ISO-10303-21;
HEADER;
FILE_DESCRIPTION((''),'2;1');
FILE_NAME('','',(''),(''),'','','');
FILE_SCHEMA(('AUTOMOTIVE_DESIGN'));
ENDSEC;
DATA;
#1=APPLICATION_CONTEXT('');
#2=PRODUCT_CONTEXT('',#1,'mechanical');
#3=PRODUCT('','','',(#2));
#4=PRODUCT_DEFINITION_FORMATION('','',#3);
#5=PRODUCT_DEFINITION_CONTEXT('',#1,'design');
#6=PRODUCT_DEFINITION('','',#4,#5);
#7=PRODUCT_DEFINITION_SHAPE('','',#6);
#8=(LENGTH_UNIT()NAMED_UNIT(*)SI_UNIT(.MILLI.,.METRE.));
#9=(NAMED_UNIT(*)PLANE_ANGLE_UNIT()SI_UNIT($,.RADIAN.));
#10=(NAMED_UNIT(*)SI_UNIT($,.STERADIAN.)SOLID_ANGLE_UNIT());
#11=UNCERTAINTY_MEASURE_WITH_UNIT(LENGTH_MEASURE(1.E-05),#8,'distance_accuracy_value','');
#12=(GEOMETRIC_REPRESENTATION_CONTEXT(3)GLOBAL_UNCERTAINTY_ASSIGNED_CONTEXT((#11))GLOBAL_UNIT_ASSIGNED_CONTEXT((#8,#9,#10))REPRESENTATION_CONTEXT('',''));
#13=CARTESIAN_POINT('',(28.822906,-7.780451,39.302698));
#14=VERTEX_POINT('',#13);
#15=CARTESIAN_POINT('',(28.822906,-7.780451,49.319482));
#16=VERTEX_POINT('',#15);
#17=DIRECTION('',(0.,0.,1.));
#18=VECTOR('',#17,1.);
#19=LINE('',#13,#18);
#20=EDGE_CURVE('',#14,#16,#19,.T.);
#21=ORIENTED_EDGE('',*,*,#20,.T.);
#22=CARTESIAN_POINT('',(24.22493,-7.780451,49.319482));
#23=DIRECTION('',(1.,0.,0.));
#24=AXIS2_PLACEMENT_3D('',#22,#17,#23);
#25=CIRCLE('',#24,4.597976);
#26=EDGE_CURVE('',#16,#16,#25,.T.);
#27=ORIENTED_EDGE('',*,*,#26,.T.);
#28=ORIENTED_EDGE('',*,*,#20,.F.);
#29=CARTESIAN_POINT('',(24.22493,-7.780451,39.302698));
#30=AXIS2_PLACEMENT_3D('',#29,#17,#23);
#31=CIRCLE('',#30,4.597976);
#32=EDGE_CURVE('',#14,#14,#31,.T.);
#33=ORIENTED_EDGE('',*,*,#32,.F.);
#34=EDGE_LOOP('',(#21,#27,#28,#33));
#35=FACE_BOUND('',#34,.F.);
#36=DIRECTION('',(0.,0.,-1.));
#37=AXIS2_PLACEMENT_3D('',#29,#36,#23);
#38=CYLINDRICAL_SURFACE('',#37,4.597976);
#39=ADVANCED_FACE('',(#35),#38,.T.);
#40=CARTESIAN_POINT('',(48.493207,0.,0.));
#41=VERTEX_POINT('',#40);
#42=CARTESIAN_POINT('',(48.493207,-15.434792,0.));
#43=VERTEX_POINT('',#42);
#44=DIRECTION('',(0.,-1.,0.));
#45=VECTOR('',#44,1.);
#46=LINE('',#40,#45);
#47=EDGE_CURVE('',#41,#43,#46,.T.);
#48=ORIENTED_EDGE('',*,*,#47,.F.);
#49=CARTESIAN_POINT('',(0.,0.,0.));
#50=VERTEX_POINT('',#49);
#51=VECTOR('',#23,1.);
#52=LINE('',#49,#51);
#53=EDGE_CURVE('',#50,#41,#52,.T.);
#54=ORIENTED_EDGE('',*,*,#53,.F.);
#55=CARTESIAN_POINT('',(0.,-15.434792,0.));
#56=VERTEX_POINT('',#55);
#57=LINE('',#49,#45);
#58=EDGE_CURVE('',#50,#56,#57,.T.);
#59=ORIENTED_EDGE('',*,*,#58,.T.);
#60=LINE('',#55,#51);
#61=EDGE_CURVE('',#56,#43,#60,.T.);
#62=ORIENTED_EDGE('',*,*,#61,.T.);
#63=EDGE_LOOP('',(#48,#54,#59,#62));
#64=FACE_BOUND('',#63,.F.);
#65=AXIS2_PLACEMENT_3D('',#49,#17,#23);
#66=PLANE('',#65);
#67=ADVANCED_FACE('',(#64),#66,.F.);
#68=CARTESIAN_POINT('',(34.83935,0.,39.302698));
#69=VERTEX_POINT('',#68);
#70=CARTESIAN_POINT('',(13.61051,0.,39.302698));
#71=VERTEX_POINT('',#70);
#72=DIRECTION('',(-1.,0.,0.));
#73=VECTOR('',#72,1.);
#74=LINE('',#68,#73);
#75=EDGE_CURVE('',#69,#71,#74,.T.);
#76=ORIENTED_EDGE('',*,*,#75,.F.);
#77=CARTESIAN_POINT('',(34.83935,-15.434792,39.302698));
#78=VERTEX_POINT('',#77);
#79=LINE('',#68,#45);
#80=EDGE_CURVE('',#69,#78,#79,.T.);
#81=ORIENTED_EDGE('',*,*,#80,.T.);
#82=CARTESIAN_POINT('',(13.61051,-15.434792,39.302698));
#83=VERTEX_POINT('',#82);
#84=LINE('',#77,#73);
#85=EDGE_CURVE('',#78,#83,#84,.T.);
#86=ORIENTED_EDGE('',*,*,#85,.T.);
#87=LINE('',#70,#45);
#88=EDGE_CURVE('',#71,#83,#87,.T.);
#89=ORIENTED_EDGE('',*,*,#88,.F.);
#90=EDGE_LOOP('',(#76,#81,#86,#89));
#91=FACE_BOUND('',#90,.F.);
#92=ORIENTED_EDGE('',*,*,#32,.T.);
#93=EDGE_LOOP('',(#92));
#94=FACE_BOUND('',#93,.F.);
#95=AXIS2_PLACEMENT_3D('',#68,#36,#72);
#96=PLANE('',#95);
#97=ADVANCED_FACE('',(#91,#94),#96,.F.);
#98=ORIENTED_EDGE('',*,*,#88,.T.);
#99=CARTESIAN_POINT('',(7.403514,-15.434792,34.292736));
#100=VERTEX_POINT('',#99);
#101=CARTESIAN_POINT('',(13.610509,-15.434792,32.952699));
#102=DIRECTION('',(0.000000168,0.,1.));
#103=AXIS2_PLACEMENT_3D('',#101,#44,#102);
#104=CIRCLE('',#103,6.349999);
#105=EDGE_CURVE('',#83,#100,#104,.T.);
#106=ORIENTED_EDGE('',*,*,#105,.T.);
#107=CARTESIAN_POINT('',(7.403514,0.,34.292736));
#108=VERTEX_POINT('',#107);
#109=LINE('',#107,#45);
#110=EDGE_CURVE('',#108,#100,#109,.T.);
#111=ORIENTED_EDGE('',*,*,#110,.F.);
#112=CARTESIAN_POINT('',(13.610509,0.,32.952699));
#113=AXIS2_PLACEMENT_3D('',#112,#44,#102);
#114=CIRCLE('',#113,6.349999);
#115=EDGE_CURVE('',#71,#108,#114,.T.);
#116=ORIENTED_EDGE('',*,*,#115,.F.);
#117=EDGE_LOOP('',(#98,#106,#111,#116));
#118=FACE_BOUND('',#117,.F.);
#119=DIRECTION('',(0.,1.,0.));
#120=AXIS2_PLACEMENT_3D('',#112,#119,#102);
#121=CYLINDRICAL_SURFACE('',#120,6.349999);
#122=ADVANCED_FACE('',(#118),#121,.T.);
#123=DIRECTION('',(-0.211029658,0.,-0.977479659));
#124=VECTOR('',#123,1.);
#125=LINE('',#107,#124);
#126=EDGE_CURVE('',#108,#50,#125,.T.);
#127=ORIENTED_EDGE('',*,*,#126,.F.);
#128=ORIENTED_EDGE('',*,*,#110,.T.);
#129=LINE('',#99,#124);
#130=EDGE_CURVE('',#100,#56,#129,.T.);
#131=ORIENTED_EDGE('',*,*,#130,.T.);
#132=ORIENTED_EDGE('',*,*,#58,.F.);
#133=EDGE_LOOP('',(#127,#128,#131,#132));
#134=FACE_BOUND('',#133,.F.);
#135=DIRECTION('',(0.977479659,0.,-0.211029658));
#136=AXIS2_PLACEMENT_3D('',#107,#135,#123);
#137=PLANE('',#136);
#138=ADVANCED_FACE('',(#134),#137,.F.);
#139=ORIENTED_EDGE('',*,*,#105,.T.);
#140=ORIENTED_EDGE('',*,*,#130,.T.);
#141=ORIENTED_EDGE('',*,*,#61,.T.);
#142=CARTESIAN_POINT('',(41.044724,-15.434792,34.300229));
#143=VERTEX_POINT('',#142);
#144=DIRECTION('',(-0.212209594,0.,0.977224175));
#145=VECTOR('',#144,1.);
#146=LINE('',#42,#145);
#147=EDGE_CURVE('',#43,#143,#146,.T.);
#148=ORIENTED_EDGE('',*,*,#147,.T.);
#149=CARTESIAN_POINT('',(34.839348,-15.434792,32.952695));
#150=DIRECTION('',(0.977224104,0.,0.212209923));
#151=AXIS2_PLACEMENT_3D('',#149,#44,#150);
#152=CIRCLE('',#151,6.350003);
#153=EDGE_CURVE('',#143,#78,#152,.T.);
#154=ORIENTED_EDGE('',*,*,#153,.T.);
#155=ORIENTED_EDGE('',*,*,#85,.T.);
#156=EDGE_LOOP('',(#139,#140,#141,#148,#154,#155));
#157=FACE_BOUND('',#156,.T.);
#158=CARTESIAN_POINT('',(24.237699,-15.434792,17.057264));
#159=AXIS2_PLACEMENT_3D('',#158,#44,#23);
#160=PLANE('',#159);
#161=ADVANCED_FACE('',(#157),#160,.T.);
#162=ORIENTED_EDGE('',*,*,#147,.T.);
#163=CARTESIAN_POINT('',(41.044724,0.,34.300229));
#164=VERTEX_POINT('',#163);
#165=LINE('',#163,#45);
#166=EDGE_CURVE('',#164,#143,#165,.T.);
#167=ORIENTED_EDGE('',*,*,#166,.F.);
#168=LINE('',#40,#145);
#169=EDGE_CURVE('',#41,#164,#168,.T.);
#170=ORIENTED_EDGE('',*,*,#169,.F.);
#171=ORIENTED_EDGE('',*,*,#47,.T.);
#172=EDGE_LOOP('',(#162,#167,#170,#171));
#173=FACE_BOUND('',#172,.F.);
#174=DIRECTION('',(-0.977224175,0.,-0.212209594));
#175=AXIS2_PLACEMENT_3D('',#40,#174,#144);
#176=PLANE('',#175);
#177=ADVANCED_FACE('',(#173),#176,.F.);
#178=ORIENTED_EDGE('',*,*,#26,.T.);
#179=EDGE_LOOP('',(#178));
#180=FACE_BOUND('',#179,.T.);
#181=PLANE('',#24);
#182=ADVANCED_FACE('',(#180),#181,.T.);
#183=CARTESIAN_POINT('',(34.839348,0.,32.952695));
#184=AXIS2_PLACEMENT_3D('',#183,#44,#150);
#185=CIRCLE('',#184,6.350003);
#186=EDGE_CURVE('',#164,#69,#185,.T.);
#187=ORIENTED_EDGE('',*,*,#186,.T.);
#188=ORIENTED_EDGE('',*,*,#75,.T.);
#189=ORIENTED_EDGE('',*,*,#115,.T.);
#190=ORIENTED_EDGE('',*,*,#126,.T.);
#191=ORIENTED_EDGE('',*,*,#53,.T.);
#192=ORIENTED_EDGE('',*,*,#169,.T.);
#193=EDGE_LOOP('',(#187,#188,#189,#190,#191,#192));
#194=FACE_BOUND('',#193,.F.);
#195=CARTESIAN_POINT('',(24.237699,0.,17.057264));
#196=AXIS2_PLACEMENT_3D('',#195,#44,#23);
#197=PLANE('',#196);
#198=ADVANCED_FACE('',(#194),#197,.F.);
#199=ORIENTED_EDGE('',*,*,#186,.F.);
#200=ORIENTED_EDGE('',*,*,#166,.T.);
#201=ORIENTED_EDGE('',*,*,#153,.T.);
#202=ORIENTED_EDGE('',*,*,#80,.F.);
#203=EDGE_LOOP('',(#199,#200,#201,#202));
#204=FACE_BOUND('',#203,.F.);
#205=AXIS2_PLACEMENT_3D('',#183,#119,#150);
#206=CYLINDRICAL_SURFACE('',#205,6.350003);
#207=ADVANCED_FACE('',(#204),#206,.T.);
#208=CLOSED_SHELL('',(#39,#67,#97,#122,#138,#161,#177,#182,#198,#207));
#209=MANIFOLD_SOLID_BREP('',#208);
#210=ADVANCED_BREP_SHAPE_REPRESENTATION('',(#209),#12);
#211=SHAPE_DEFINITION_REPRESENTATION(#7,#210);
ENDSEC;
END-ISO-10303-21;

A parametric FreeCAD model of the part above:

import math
import FreeCAD as App
import Part
import Sketcher

V = App.Vector
Q = App.Units.Quantity

doc = App.newDocument("Part")
body = doc.addObject("PartDesign::Body", "Body")

# Sketch on XZ plane
sketch1 = body.newObject("Sketcher::SketchObject", "Sketch")
sketch1.AttachmentSupport = (doc.getObject("XZ_Plane"), [""])
sketch1.MapMode = "FlatFace"
sketch1.addGeometry([
    Part.LineSegment(V(7, 34, 0), V(0, 0, 0)),  # 0
    Part.LineSegment(V(0, 0, 0), V(48, 0, 0)),  # 1
    Part.LineSegment(V(48, 0, 0), V(41, 34, 0)),  # 2
    Part.ArcOfCircle(Part.Circle(V(35, 33, 0), V(0, 0, 1), 6), math.radians(12), math.radians(90)),  # 3
    Part.LineSegment(V(35, 39, 0), V(14, 39, 0)),  # 4
    Part.ArcOfCircle(Part.Circle(V(14, 33, 0), V(0, 0, 1), 6), math.radians(90), math.radians(168)),  # 5
], False)
sketch1.addConstraint([
    Sketcher.Constraint("Coincident", 0, 2, 1, 1),
    Sketcher.Constraint("Coincident", 1, 2, 2, 1),
    Sketcher.Constraint("Tangent", 2, 2, 3, 1),
    Sketcher.Constraint("Tangent", 3, 2, 4, 1),
    Sketcher.Constraint("Tangent", 4, 2, 5, 1),
    Sketcher.Constraint("Tangent", 5, 2, 0, 1),
    Sketcher.Constraint("Horizontal", 1),
    Sketcher.Constraint("Horizontal", 4),
    Sketcher.Constraint("Coincident", 0, 2, -1, 1),
    Sketcher.Constraint("Radius", 3, Q("0.2500001 in")),
    Sketcher.Constraint("Radius", 5, Q("0.25 in")),
    Sketcher.Constraint("DistanceX", 4, 2, 4, 1, 21.22884),
    Sketcher.Constraint("DistanceY", -1, 1, 5, 3, 32.952699),
    Sketcher.Constraint("DistanceX", 5, 3, 1, 2, 34.882698),
    Sketcher.Constraint("DistanceX", 1, 1, 1, 2, 48.493207),
])
pad1 = body.newObject("PartDesign::Pad", "Pad")
pad1.Profile = sketch1
pad1.Length = 15.434792

# Sketch on XY plane
sketch2 = body.newObject("Sketcher::SketchObject", "Sketch001")
sketch2.AttachmentSupport = (doc.getObject("XY_Plane"), [""])
sketch2.MapMode = "FlatFace"
sketch2.AttachmentOffset = App.Placement(V(0, 0, 39.302698), App.Rotation())
sketch2.addGeometry(Part.Circle(V(24.2, -7.8, 0), V(0, 0, 1), 4.6), False)
sketch2.addConstraint([
    Sketcher.Constraint("Diameter", 0, 9.195952),
    Sketcher.Constraint("DistanceX", -1, 1, 0, 3, 24.22493),
    Sketcher.Constraint("DistanceY", 0, 3, -1, 1, 7.780451),
])
pad2 = body.newObject("PartDesign::Pad", "Pad001")
pad2.Profile = sketch2
pad2.Length = 10.016784

doc.recompute()
